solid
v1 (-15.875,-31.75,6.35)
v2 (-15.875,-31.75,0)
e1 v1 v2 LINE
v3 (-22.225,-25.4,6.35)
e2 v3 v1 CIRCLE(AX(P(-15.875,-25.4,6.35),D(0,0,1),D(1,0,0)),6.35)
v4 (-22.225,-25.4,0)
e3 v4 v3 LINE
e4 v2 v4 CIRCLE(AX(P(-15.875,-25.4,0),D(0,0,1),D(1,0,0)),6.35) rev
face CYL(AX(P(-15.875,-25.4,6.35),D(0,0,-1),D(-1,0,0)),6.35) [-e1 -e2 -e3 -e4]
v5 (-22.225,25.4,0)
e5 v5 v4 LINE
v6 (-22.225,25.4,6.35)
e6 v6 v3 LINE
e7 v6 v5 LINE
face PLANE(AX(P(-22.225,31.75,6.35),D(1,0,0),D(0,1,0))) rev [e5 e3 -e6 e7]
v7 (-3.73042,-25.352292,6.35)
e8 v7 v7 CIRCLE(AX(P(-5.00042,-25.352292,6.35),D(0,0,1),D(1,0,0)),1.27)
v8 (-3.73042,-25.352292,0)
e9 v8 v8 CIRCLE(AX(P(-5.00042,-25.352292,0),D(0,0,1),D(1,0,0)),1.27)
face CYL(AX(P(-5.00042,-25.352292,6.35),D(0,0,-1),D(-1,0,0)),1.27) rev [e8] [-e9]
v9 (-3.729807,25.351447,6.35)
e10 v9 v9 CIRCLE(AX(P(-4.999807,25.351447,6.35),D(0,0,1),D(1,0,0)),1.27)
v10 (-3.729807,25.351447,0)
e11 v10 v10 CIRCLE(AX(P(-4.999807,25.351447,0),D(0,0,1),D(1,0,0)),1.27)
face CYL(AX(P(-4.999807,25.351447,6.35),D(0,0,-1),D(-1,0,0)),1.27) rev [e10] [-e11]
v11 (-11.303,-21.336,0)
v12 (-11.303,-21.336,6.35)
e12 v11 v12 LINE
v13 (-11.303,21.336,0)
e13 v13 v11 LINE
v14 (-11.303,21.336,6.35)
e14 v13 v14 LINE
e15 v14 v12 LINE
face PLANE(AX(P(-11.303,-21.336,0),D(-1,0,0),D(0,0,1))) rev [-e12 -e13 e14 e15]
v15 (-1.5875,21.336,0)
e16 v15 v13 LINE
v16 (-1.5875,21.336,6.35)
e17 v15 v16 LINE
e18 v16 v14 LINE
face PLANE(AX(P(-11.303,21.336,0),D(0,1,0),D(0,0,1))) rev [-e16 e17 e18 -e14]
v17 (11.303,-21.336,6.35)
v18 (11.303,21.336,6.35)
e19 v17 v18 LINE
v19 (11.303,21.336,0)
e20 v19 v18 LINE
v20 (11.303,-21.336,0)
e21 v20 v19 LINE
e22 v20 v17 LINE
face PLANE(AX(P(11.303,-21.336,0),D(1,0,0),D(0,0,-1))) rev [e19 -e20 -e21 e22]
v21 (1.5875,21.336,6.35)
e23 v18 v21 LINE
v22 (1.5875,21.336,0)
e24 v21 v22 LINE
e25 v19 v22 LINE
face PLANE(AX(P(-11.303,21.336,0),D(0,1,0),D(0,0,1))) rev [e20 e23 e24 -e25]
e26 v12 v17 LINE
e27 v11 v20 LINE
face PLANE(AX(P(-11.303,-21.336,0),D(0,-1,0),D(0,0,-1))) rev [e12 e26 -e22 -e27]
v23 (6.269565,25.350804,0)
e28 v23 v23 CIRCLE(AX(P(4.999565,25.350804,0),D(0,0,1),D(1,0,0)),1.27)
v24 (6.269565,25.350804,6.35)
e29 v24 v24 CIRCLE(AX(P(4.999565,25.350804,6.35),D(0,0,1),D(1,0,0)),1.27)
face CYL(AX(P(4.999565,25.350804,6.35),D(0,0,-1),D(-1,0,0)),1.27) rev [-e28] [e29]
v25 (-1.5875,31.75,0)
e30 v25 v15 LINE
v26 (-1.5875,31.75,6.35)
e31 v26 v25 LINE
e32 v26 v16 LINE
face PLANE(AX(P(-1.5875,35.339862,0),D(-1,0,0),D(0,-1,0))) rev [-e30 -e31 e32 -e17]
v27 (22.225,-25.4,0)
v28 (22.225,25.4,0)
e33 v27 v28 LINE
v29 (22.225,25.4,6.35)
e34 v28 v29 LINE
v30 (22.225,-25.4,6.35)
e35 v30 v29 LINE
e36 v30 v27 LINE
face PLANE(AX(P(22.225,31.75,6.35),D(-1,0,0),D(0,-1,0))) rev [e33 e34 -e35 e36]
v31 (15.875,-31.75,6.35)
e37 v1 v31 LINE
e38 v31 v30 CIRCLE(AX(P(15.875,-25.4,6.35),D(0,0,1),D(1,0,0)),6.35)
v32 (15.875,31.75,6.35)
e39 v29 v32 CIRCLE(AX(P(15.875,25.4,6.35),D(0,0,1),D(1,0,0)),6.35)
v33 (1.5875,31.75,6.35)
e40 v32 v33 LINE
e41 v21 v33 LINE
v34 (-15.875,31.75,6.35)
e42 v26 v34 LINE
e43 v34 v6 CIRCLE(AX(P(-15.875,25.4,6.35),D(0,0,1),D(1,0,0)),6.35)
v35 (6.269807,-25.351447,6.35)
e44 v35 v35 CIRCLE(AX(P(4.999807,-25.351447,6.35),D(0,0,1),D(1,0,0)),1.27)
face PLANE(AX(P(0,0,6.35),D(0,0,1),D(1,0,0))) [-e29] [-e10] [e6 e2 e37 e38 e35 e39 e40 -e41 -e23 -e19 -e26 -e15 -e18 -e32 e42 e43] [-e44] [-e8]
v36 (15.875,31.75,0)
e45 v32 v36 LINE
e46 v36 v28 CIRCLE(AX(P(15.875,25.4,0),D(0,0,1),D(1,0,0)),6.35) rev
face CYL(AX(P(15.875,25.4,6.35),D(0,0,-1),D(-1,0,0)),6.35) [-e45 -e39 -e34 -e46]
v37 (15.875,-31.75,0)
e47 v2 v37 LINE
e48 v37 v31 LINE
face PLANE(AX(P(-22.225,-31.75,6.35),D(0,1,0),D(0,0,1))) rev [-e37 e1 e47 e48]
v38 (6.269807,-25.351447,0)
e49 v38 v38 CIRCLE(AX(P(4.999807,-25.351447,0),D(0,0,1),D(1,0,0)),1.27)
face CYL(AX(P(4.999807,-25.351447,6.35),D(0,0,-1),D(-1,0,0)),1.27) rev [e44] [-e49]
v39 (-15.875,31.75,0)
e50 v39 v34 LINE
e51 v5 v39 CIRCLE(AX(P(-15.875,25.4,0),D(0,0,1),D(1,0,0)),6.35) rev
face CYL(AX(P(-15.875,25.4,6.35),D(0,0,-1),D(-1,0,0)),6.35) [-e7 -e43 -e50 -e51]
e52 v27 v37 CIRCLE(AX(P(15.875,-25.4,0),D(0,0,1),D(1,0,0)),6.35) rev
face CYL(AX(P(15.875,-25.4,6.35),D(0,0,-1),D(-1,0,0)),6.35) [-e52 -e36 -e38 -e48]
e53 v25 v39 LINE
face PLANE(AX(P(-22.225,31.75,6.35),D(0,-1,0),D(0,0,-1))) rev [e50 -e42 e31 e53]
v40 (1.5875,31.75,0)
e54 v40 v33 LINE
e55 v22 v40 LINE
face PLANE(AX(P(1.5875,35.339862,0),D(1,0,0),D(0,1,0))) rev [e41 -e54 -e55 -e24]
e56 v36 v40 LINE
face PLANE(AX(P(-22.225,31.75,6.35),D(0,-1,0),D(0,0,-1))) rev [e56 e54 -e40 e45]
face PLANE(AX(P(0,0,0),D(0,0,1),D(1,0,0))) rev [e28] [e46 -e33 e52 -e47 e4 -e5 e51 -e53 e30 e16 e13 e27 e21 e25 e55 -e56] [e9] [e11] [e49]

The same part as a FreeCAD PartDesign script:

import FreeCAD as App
import Part
import Sketcher
from FreeCAD import Vector
Q = App.Units.Quantity


def edges_at(feature, points):
    """Names of the edges that pass closest to the given points."""
    edges = feature.Shape.Edges
    near = lambda p: min(range(len(edges)), key=lambda i: edges[i].distToShape(Part.Vertex(*p))[0])
    return sorted({f"Edge{near(p) + 1}" for p in points})

doc = App.newDocument("Part")
body = doc.addObject("PartDesign::Body", "Body")

# Sketch on XY plane
sketch1 = doc.addObject("Sketcher::SketchObject", "Sketch")
body.addObject(sketch1)
sketch1.AttachmentSupport = (doc.XY_Plane, [""])
sketch1.MapMode = "FlatFace"
sketch1.addGeometry([
    Part.LineSegment(Vector(-22.225, 31.75, 0), Vector(-22.225, -31.75, 0)),  # 0
    Part.LineSegment(Vector(-22.225, -31.75, 0), Vector(22.225, -31.75, 0)),  # 1
    Part.LineSegment(Vector(22.225, -31.75, 0), Vector(22.225, 31.75, 0)),  # 2
    Part.LineSegment(Vector(22.225, 31.75, 0), Vector(-22.225, 31.75, 0)),  # 3
    Part.Circle(Vector(-5.00042, -25.352292, 0), Vector(0, 0, 1), 1.27),  # 4
    Part.Circle(Vector(4.999807, -25.351447, 0), Vector(0, 0, 1), 1.27),  # 5
    Part.Circle(Vector(-4.999807, 25.351447, 0), Vector(0, 0, 1), 1.27),  # 6
    Part.Circle(Vector(4.999565, 25.350804, 0), Vector(0, 0, 1), 1.27),  # 7
], False)
sketch1.addConstraint([
    Sketcher.Constraint("Coincident", 0, 2, 1, 1),
    Sketcher.Constraint("Coincident", 1, 2, 2, 1),
    Sketcher.Constraint("Coincident", 2, 2, 3, 1),
    Sketcher.Constraint("Coincident", 3, 2, 0, 1),
    Sketcher.Constraint("Vertical", 0),
    Sketcher.Constraint("Horizontal", 1),
    Sketcher.Constraint("Vertical", 2),
    Sketcher.Constraint("Horizontal", 3),
    Sketcher.Constraint("Equal", 4, 5),
    Sketcher.Constraint("Equal", 5, 6),
    Sketcher.Constraint("Equal", 6, 7),
    Sketcher.Constraint("Symmetric", 5, 3, 6, 3, -1, 1),
    Sketcher.Constraint("Symmetric", 0, 2, 2, 2, -1, 1),
    Sketcher.Constraint("Diameter", 4, Q("0.1 in")),
    Sketcher.Constraint("DistanceY", 0, 2, 0, 1, Q("2.5 in")),
    Sketcher.Constraint("DistanceX", 1, 1, 1, 2, Q("1.75 in")),
    Sketcher.Constraint("DistanceX", 4, 3, 7, 3, Q("0.3937002 in")),
    Sketcher.Constraint("DistanceX", 4, 3, -1, 1, 5.00042),
    Sketcher.Constraint("DistanceY", 4, 3, 6, 3, 50.703739),
    Sketcher.Constraint("DistanceX", 7, 3, 5, 3, 0.000242),
    Sketcher.Constraint("DistanceY", 5, 3, 7, 3, 50.702251),
    Sketcher.Constraint("DistanceY", 4, 3, -1, 1, 25.352292),
])
pad1 = doc.addObject("PartDesign::Pad", "Pad")
body.addObject(pad1)
pad1.Profile = sketch1
pad1.Length = Q("0.25 in")

# Sketch on XY plane
sketch2 = doc.addObject("Sketcher::SketchObject", "Sketch001")
body.addObject(sketch2)
sketch2.AttachmentSupport = (doc.XY_Plane, [""])
sketch2.MapMode = "FlatFace"
sketch2.AttachmentOffset = App.Placement(Vector(0, 0, 0.25 * 25.4), App.Rotation())
sketch2.addGeometry([
    Part.LineSegment(Vector(-11.303, 21.336, 0), Vector(-11.303, -21.336, 0)),
    Part.LineSegment(Vector(-11.303, -21.336, 0), Vector(11.303, -21.336, 0)),
    Part.LineSegment(Vector(11.303, -21.336, 0), Vector(11.303, 21.336, 0)),
    Part.LineSegment(Vector(11.303, 21.336, 0), Vector(-11.303, 21.336, 0)),
], False)
sketch2.addConstraint([
    Sketcher.Constraint("Coincident", 0, 2, 1, 1),
    Sketcher.Constraint("Coincident", 1, 2, 2, 1),
    Sketcher.Constraint("Coincident", 2, 2, 3, 1),
    Sketcher.Constraint("Coincident", 3, 2, 0, 1),
    Sketcher.Constraint("Vertical", 0),
    Sketcher.Constraint("Horizontal", 1),
    Sketcher.Constraint("Vertical", 2),
    Sketcher.Constraint("Horizontal", 3),
    Sketcher.Constraint("Symmetric", 0, 2, 2, 2, -1, 1),
    Sketcher.Constraint("DistanceX", 1, 1, 1, 2, Q("0.89 in")),
    Sketcher.Constraint("DistanceY", 0, 2, 0, 1, Q("1.68 in")),
])
pocket1 = doc.addObject("PartDesign::Pocket", "Pocket")
body.addObject(pocket1)
pocket1.Profile = sketch2
pocket1.Type = "ThroughAll"

# Sketch on XY plane
sketch3 = doc.addObject("Sketcher::SketchObject", "Sketch002")
body.addObject(sketch3)
sketch3.AttachmentSupport = (doc.XY_Plane, [""])
sketch3.MapMode = "FlatFace"
sketch3.AttachmentOffset = App.Placement(Vector(0, 0, 0.25 * 25.4), App.Rotation())
sketch3.addGeometry([
    Part.LineSegment(Vector(-1.5875, 35.339862, 0), Vector(-1.5875, 19.091434, 0)),
    Part.LineSegment(Vector(-1.5875, 19.091434, 0), Vector(1.5875, 19.091434, 0)),
    Part.LineSegment(Vector(1.5875, 19.091434, 0), Vector(1.5875, 35.339862, 0)),
    Part.LineSegment(Vector(1.5875, 35.339862, 0), Vector(-1.5875, 35.339862, 0)),
], False)
sketch3.addConstraint([
    Sketcher.Constraint("Coincident", 0, 2, 1, 1),
    Sketcher.Constraint("Coincident", 1, 2, 2, 1),
    Sketcher.Constraint("Coincident", 2, 2, 3, 1),
    Sketcher.Constraint("Coincident", 3, 2, 0, 1),
    Sketcher.Constraint("Vertical", 0),
    Sketcher.Constraint("Horizontal", 1),
    Sketcher.Constraint("Vertical", 2),
    Sketcher.Constraint("Horizontal", 3),
    Sketcher.Constraint("DistanceX", 1, 1, 1, 2, Q("0.125 in")),
    Sketcher.Constraint("DistanceX", 0, 2, -1, 1, Q("0.0625 in")),
    Sketcher.Constraint("DistanceY", 0, 2, 0, 1, 16.248428),
    Sketcher.Constraint("DistanceY", -1, 1, 2, 2, 35.339862),
])
pocket2 = doc.addObject("PartDesign::Pocket", "Pocket001")
body.addObject(pocket2)
pocket2.Profile = sketch3
pocket2.Type = "ThroughAll"
doc.recompute()

fillet = doc.addObject("PartDesign::Fillet", "Fillet")
body.addObject(fillet)
fillet.Base = (pocket2, edges_at(pocket2, [
    (-22.225, 31.75, 3.175),
    (22.225, 31.75, 3.175),
    (22.225, -31.75, 3.175),
    (-22.225, -31.75, 3.175),
]))
fillet.Radius = Q("0.25 in")

doc.recompute()
